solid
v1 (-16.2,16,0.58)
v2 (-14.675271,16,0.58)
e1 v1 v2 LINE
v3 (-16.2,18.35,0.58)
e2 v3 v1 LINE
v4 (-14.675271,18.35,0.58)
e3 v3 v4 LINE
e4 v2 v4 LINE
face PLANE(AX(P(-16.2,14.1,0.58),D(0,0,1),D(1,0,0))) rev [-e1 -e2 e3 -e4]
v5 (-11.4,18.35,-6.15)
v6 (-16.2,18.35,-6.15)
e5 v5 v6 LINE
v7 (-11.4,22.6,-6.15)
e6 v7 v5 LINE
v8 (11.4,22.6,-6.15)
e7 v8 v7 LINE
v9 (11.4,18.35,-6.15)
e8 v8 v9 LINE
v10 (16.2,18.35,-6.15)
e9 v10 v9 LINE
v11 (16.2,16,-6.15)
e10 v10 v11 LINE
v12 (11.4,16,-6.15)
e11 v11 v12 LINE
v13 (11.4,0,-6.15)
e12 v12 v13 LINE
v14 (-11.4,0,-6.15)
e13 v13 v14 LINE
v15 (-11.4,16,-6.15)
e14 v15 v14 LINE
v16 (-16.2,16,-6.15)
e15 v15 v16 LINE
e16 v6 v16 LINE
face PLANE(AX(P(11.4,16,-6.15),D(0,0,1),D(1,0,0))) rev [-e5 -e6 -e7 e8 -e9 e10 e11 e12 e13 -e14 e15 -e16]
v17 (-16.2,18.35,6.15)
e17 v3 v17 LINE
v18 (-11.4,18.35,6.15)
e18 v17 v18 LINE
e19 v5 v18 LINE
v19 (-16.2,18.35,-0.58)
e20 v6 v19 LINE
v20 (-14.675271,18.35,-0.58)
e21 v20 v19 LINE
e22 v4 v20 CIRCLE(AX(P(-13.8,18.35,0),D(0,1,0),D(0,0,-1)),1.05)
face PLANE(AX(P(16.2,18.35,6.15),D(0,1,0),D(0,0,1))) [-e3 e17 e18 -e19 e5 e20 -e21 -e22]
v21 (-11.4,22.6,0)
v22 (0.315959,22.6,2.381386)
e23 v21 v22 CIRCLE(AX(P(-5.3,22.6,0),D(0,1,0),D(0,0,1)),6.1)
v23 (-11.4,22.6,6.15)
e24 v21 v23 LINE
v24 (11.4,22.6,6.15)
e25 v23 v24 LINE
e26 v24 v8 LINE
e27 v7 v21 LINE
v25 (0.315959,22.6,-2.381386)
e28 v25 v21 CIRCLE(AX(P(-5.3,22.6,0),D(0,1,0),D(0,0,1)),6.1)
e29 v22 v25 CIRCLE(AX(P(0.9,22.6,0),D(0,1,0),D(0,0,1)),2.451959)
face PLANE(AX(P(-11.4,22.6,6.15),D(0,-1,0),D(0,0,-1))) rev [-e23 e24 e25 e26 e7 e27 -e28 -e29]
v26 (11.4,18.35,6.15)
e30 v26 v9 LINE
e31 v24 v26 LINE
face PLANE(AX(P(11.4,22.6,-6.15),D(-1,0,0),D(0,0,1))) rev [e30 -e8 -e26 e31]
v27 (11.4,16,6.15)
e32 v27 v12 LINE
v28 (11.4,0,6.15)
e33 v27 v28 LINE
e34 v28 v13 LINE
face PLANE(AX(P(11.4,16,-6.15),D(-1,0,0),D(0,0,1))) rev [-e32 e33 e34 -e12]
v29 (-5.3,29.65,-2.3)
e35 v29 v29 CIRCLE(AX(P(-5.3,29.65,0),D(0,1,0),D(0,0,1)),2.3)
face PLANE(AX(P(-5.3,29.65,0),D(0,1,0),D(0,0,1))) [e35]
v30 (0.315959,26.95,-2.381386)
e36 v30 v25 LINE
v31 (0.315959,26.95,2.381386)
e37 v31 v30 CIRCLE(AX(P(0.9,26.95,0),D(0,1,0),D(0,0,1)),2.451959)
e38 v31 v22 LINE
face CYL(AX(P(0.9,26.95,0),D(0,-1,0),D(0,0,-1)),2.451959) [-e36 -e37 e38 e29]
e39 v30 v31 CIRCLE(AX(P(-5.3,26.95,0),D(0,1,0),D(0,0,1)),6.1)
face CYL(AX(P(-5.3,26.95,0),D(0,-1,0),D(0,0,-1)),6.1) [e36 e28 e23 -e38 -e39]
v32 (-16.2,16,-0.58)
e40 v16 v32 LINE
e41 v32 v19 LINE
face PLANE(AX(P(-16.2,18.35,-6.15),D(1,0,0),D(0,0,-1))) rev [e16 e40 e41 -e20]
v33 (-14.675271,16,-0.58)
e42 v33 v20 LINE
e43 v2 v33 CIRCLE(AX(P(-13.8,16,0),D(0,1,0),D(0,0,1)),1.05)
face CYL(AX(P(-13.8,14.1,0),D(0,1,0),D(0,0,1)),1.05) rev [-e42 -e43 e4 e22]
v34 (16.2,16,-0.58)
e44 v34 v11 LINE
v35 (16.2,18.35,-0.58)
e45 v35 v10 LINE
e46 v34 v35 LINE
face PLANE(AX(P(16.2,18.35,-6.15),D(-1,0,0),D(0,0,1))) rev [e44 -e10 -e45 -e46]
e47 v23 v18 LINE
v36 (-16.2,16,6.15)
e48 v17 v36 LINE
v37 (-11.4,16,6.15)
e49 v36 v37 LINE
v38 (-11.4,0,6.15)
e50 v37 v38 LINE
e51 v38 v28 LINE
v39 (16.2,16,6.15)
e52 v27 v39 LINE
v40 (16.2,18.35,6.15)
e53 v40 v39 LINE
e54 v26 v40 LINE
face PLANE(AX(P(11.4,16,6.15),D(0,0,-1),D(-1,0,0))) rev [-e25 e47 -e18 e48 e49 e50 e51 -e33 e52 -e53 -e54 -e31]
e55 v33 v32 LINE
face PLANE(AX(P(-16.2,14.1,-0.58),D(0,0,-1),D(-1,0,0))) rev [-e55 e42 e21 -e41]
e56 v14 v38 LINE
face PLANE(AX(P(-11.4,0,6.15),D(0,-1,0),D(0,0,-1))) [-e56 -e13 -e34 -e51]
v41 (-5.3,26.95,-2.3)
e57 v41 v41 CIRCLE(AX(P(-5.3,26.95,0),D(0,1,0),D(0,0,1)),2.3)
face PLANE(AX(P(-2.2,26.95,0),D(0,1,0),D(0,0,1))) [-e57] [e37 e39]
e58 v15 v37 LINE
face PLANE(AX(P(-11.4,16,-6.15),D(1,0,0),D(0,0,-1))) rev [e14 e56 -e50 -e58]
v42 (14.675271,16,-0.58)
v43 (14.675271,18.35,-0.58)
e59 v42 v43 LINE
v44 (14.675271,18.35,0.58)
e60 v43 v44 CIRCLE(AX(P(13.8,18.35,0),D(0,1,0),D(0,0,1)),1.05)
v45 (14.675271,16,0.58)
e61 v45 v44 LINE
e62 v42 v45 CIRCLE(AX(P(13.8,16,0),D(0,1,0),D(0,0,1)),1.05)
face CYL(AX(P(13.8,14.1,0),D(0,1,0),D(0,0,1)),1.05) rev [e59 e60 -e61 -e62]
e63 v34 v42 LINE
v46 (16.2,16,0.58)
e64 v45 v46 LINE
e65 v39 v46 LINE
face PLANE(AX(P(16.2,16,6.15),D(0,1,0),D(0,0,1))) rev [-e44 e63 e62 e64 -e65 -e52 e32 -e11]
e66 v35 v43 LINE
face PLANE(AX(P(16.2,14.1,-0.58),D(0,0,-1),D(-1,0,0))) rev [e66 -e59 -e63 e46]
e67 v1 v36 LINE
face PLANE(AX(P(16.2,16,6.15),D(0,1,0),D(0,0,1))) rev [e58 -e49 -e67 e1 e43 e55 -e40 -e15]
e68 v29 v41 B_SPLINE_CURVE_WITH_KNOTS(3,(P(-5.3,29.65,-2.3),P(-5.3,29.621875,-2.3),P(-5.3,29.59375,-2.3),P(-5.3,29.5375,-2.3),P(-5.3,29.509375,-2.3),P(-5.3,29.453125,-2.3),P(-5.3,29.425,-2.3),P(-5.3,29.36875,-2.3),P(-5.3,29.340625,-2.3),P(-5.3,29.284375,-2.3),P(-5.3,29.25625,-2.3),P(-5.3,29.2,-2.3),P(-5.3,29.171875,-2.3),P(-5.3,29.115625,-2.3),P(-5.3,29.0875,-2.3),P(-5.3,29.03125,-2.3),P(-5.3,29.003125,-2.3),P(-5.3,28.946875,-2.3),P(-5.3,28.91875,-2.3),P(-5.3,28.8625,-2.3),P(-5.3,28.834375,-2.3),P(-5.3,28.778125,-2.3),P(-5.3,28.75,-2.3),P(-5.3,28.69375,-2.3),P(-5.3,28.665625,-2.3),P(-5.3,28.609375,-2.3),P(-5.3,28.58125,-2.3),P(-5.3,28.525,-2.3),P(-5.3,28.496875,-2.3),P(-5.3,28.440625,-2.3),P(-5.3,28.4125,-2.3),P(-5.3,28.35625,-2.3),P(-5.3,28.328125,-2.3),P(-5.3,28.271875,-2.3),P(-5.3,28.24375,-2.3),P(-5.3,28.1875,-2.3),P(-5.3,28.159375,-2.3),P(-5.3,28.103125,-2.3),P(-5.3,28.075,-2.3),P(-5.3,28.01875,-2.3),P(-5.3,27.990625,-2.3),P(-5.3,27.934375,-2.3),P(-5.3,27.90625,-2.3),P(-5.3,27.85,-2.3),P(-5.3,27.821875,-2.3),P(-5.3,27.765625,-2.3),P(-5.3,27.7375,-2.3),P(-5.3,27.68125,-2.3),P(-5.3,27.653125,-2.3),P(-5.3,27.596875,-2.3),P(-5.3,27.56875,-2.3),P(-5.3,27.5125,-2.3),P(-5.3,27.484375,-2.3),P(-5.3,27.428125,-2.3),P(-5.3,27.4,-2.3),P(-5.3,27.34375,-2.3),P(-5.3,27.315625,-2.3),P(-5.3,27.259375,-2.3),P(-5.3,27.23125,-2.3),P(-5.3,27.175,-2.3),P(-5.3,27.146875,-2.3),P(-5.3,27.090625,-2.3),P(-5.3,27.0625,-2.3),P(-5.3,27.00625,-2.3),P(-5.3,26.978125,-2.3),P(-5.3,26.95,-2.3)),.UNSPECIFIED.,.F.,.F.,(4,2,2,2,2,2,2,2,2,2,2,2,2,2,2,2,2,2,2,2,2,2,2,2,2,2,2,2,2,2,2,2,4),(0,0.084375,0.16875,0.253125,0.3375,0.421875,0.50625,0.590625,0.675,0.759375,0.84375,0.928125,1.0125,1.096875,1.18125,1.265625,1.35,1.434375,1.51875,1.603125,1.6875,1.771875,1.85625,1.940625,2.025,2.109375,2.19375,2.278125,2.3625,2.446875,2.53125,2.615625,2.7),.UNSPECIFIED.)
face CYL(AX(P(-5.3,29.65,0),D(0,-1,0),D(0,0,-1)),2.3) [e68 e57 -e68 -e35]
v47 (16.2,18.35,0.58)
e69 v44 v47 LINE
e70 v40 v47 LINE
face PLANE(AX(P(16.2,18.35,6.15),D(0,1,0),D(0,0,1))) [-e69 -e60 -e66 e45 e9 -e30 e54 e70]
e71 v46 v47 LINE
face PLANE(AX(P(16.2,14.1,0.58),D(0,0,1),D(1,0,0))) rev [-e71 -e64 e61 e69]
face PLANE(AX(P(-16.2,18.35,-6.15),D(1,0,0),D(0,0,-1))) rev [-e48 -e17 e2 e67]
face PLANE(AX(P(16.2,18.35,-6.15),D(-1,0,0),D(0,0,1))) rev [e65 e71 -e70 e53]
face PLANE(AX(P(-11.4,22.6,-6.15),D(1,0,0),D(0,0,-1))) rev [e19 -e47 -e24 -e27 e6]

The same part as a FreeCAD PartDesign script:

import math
import FreeCAD as App
import Part
import Sketcher

V = App.Vector

doc = App.newDocument("Part")
body = doc.addObject("PartDesign::Body", "Body")

# Sketch on XZ plane
sketch1 = body.newObject("Sketcher::SketchObject", "Sketch")
sketch1.AttachmentSupport = (doc.getObject("XZ_Plane"), [""])
sketch1.MapMode = "FlatFace"
sketch1.addGeometry([
    Part.LineSegment(V(-11.4, -6.15, 0), V(-11.4, 6.15, 0)),
    Part.LineSegment(V(-11.4, 6.15, 0), V(11.4, 6.15, 0)),
    Part.LineSegment(V(11.4, 6.15, 0), V(11.4, -6.15, 0)),
    Part.LineSegment(V(11.4, -6.15, 0), V(-11.4, -6.15, 0)),
], False)
sketch1.addConstraint([
    Sketcher.Constraint("Coincident", 0, 2, 1, 1),
    Sketcher.Constraint("Coincident", 1, 2, 2, 1),
    Sketcher.Constraint("Coincident", 2, 2, 3, 1),
    Sketcher.Constraint("Coincident", 3, 2, 0, 1),
    Sketcher.Constraint("Vertical", 0),
    Sketcher.Constraint("Horizontal", 1),
    Sketcher.Constraint("Vertical", 2),
    Sketcher.Constraint("Horizontal", 3),
    Sketcher.Constraint("Symmetric", 0, 2, 2, 2, -1, 1),
    Sketcher.Constraint("DistanceX", 1, 1, 1, 2, 22.8),
    Sketcher.Constraint("DistanceY", 0, 1, 0, 2, 12.3),
])
pad1 = body.newObject("PartDesign::Pad", "Pad")
pad1.Profile = sketch1
pad1.Length = 16
pad1.Reversed = True

# Sketch on XZ plane
sketch2 = body.newObject("Sketcher::SketchObject", "Sketch001")
sketch2.AttachmentSupport = (doc.getObject("XZ_Plane"), [""])
sketch2.MapMode = "FlatFace"
sketch2.AttachmentOffset = App.Placement(V(0, 0, -16), App.Rotation())
sketch2.addGeometry([
    Part.LineSegment(V(-16.2, -6.15, 0), V(-16.2, 6.15, 0)),
    Part.LineSegment(V(-16.2, 6.15, 0), V(16.2, 6.15, 0)),
    Part.LineSegment(V(16.2, 6.15, 0), V(16.2, -6.15, 0)),
    Part.LineSegment(V(16.2, -6.15, 0), V(-16.2, -6.15, 0)),
], False)
sketch2.addConstraint([
    Sketcher.Constraint("Coincident", 0, 2, 1, 1),
    Sketcher.Constraint("Coincident", 1, 2, 2, 1),
    Sketcher.Constraint("Coincident", 2, 2, 3, 1),
    Sketcher.Constraint("Coincident", 3, 2, 0, 1),
    Sketcher.Constraint("Vertical", 0),
    Sketcher.Constraint("Horizontal", 1),
    Sketcher.Constraint("Vertical", 2),
    Sketcher.Constraint("Horizontal", 3),
    Sketcher.Constraint("Symmetric", 0, 2, 2, 2, -1, 1),
    Sketcher.Constraint("DistanceX", 1, 1, 1, 2, 32.4),
    Sketcher.Constraint("DistanceY", 0, 1, 0, 2, 12.3),
])
pad2 = body.newObject("PartDesign::Pad", "Pad001")
pad2.Profile = sketch2
pad2.Length = 2.35
pad2.Reversed = True

# Sketch on XZ plane
sketch3 = body.newObject("Sketcher::SketchObject", "Sketch002")
sketch3.AttachmentSupport = (doc.getObject("XZ_Plane"), [""])
sketch3.MapMode = "FlatFace"
sketch3.AttachmentOffset = App.Placement(V(0, 0, -18.35), App.Rotation())
sketch3.addGeometry([
    Part.LineSegment(V(11.4, 6.15, 0), V(11.4, -6.15, 0)),
    Part.LineSegment(V(11.4, -6.15, 0), V(-11.4, -6.15, 0)),
    Part.LineSegment(V(-11.4, -6.15, 0), V(-11.4, 6.15, 0)),
    Part.LineSegment(V(-11.4, 6.15, 0), V(11.4, 6.15, 0)),
], False)
sketch3.addConstraint([
    Sketcher.Constraint("Coincident", 0, 2, 1, 1),
    Sketcher.Constraint("Coincident", 1, 2, 2, 1),
    Sketcher.Constraint("Coincident", 2, 2, 3, 1),
    Sketcher.Constraint("Coincident", 3, 2, 0, 1),
    Sketcher.Constraint("Vertical", 0),
    Sketcher.Constraint("Horizontal", 1),
    Sketcher.Constraint("Vertical", 2),
    Sketcher.Constraint("Horizontal", 3),
    Sketcher.Constraint("Symmetric", 0, 2, 2, 2, -1, 1),
    Sketcher.Constraint("DistanceX", 1, 2, 1, 1, 22.8),
    Sketcher.Constraint("DistanceY", 0, 2, 0, 1, 12.3),
])
pad3 = body.newObject("PartDesign::Pad", "Pad002")
pad3.Profile = sketch3
pad3.Length = 4.25
pad3.Reversed = True

# Sketch on XZ plane
sketch4 = body.newObject("Sketcher::SketchObject", "Sketch003")
sketch4.AttachmentSupport = (doc.getObject("XZ_Plane"), [""])
sketch4.MapMode = "FlatFace"
sketch4.AttachmentOffset = App.Placement(V(0, 0, -18.35), App.Rotation())
sketch4.addGeometry([
    Part.LineSegment(V(16.2, -0.58, 0), V(14.675271, -0.58, 0)),  # 0
    Part.ArcOfCircle(Part.Circle(V(13.8, 0, 0), V(0, 0, 1), 1.05), math.radians(33.53051), math.radians(326.46949)),  # 1
    Part.LineSegment(V(14.675271, 0.58, 0), V(16.2, 0.58, 0)),  # 2
    Part.LineSegment(V(16.2, 0.58, 0), V(16.2, -0.58, 0)),  # 3
    Part.LineSegment(V(-14.675271, -0.58, 0), V(-16.2, -0.58, 0)),  # 4
    Part.LineSegment(V(-16.2, -0.58, 0), V(-16.2, 0.58, 0)),  # 5
    Part.LineSegment(V(-16.2, 0.58, 0), V(-14.675271, 0.58, 0)),  # 6
    Part.ArcOfCircle(Part.Circle(V(-13.8, 0, 0), V(0, 0, 1), 1.05), math.radians(-146.46949), math.radians(146.46949)),  # 7
], False)
sketch4.addConstraint([
    Sketcher.Constraint("Coincident", 0, 2, 1, 2),
    Sketcher.Constraint("Coincident", 1, 1, 2, 1),
    Sketcher.Constraint("Coincident", 2, 2, 3, 1),
    Sketcher.Constraint("Coincident", 3, 2, 0, 1),
    Sketcher.Constraint("Coincident", 4, 2, 5, 1),
    Sketcher.Constraint("Coincident", 5, 2, 6, 1),
    Sketcher.Constraint("Coincident", 6, 2, 7, 2),
    Sketcher.Constraint("Coincident", 7, 1, 4, 1),
    Sketcher.Constraint("Horizontal", 0),
    Sketcher.Constraint("Horizontal", 2),
    Sketcher.Constraint("Vertical", 3),
    Sketcher.Constraint("Horizontal", 4),
    Sketcher.Constraint("Vertical", 5),
    Sketcher.Constraint("Horizontal", 6),
    Sketcher.Constraint("Equal", 1, 7),
    Sketcher.Constraint("Symmetric", 1, 3, 7, 3, -1, 1),
    Sketcher.Constraint("Symmetric", 2, 2, 4, 2, -1, 1),
    Sketcher.Constraint("Symmetric", 1, 1, 6, 2, -2),
    Sketcher.Constraint("Horizontal", 3, 2, 4, 2),
    Sketcher.Constraint("Radius", 1, 1.05),
    Sketcher.Constraint("DistanceX", 7, 3, 2, 2, 30.0),
    Sketcher.Constraint("DistanceY", 3, 2, 3, 1, 1.16),
    Sketcher.Constraint("DistanceX", -1, 1, 1, 3, 13.8),
])
pocket1 = body.newObject("PartDesign::Pocket", "Pocket")
pocket1.Profile = sketch4
pocket1.Length = 4.25
pocket1.Reversed = True

# Sketch on XZ plane
sketch5 = body.newObject("Sketcher::SketchObject", "Sketch004")
sketch5.AttachmentSupport = (doc.getObject("XZ_Plane"), [""])
sketch5.MapMode = "FlatFace"
sketch5.AttachmentOffset = App.Placement(V(0, 0, -22.6), App.Rotation())
sketch5.addGeometry([
    Part.ArcOfCircle(Part.Circle(V(-5.3, 0, 0), V(0, 0, 1), 6.1), math.radians(22.978841), math.radians(337.021159)),
    Part.ArcOfCircle(Part.Circle(V(0.9, 0, 0), V(0, 0, 1), 2.451959), math.radians(-103.779941), math.radians(103.779941)),
], False)
sketch5.addConstraint([
    Sketcher.Constraint("Coincident", 0, 1, 1, 2),
    Sketcher.Constraint("Coincident", 1, 1, 0, 2),
    Sketcher.Constraint("Symmetric", 0, 1, 1, 1, -1),
    Sketcher.Constraint("Radius", 0, 6.1),
    Sketcher.Constraint("DistanceX", 0, 3, -1, 1, 5.3),
    Sketcher.Constraint("DistanceX", -1, 1, 1, 3, 0.9),
    Sketcher.Constraint("Radius", 1, 2.451959),
])
pad4 = body.newObject("PartDesign::Pad", "Pad003")
pad4.Profile = sketch5
pad4.Length = 4.35
pad4.Reversed = True

# Sketch on XZ plane
sketch6 = body.newObject("Sketcher::SketchObject", "Sketch005")
sketch6.AttachmentSupport = (doc.getObject("XZ_Plane"), [""])
sketch6.MapMode = "FlatFace"
sketch6.AttachmentOffset = App.Placement(V(0, 0, -26.95), App.Rotation())
sketch6.addGeometry(Part.Circle(V(-5.3, 0, 0), V(0, 0, 1), 2.3), False)
sketch6.addConstraint([
    Sketcher.Constraint("PointOnObject", 0, 3, -1),
    Sketcher.Constraint("Diameter", 0, 4.6),
    Sketcher.Constraint("DistanceX", 0, 3, -1, 1, 5.3),
])
pad5 = body.newObject("PartDesign::Pad", "Pad004")
pad5.Profile = sketch6
pad5.Length = 2.7
pad5.Reversed = True

doc.recompute()
